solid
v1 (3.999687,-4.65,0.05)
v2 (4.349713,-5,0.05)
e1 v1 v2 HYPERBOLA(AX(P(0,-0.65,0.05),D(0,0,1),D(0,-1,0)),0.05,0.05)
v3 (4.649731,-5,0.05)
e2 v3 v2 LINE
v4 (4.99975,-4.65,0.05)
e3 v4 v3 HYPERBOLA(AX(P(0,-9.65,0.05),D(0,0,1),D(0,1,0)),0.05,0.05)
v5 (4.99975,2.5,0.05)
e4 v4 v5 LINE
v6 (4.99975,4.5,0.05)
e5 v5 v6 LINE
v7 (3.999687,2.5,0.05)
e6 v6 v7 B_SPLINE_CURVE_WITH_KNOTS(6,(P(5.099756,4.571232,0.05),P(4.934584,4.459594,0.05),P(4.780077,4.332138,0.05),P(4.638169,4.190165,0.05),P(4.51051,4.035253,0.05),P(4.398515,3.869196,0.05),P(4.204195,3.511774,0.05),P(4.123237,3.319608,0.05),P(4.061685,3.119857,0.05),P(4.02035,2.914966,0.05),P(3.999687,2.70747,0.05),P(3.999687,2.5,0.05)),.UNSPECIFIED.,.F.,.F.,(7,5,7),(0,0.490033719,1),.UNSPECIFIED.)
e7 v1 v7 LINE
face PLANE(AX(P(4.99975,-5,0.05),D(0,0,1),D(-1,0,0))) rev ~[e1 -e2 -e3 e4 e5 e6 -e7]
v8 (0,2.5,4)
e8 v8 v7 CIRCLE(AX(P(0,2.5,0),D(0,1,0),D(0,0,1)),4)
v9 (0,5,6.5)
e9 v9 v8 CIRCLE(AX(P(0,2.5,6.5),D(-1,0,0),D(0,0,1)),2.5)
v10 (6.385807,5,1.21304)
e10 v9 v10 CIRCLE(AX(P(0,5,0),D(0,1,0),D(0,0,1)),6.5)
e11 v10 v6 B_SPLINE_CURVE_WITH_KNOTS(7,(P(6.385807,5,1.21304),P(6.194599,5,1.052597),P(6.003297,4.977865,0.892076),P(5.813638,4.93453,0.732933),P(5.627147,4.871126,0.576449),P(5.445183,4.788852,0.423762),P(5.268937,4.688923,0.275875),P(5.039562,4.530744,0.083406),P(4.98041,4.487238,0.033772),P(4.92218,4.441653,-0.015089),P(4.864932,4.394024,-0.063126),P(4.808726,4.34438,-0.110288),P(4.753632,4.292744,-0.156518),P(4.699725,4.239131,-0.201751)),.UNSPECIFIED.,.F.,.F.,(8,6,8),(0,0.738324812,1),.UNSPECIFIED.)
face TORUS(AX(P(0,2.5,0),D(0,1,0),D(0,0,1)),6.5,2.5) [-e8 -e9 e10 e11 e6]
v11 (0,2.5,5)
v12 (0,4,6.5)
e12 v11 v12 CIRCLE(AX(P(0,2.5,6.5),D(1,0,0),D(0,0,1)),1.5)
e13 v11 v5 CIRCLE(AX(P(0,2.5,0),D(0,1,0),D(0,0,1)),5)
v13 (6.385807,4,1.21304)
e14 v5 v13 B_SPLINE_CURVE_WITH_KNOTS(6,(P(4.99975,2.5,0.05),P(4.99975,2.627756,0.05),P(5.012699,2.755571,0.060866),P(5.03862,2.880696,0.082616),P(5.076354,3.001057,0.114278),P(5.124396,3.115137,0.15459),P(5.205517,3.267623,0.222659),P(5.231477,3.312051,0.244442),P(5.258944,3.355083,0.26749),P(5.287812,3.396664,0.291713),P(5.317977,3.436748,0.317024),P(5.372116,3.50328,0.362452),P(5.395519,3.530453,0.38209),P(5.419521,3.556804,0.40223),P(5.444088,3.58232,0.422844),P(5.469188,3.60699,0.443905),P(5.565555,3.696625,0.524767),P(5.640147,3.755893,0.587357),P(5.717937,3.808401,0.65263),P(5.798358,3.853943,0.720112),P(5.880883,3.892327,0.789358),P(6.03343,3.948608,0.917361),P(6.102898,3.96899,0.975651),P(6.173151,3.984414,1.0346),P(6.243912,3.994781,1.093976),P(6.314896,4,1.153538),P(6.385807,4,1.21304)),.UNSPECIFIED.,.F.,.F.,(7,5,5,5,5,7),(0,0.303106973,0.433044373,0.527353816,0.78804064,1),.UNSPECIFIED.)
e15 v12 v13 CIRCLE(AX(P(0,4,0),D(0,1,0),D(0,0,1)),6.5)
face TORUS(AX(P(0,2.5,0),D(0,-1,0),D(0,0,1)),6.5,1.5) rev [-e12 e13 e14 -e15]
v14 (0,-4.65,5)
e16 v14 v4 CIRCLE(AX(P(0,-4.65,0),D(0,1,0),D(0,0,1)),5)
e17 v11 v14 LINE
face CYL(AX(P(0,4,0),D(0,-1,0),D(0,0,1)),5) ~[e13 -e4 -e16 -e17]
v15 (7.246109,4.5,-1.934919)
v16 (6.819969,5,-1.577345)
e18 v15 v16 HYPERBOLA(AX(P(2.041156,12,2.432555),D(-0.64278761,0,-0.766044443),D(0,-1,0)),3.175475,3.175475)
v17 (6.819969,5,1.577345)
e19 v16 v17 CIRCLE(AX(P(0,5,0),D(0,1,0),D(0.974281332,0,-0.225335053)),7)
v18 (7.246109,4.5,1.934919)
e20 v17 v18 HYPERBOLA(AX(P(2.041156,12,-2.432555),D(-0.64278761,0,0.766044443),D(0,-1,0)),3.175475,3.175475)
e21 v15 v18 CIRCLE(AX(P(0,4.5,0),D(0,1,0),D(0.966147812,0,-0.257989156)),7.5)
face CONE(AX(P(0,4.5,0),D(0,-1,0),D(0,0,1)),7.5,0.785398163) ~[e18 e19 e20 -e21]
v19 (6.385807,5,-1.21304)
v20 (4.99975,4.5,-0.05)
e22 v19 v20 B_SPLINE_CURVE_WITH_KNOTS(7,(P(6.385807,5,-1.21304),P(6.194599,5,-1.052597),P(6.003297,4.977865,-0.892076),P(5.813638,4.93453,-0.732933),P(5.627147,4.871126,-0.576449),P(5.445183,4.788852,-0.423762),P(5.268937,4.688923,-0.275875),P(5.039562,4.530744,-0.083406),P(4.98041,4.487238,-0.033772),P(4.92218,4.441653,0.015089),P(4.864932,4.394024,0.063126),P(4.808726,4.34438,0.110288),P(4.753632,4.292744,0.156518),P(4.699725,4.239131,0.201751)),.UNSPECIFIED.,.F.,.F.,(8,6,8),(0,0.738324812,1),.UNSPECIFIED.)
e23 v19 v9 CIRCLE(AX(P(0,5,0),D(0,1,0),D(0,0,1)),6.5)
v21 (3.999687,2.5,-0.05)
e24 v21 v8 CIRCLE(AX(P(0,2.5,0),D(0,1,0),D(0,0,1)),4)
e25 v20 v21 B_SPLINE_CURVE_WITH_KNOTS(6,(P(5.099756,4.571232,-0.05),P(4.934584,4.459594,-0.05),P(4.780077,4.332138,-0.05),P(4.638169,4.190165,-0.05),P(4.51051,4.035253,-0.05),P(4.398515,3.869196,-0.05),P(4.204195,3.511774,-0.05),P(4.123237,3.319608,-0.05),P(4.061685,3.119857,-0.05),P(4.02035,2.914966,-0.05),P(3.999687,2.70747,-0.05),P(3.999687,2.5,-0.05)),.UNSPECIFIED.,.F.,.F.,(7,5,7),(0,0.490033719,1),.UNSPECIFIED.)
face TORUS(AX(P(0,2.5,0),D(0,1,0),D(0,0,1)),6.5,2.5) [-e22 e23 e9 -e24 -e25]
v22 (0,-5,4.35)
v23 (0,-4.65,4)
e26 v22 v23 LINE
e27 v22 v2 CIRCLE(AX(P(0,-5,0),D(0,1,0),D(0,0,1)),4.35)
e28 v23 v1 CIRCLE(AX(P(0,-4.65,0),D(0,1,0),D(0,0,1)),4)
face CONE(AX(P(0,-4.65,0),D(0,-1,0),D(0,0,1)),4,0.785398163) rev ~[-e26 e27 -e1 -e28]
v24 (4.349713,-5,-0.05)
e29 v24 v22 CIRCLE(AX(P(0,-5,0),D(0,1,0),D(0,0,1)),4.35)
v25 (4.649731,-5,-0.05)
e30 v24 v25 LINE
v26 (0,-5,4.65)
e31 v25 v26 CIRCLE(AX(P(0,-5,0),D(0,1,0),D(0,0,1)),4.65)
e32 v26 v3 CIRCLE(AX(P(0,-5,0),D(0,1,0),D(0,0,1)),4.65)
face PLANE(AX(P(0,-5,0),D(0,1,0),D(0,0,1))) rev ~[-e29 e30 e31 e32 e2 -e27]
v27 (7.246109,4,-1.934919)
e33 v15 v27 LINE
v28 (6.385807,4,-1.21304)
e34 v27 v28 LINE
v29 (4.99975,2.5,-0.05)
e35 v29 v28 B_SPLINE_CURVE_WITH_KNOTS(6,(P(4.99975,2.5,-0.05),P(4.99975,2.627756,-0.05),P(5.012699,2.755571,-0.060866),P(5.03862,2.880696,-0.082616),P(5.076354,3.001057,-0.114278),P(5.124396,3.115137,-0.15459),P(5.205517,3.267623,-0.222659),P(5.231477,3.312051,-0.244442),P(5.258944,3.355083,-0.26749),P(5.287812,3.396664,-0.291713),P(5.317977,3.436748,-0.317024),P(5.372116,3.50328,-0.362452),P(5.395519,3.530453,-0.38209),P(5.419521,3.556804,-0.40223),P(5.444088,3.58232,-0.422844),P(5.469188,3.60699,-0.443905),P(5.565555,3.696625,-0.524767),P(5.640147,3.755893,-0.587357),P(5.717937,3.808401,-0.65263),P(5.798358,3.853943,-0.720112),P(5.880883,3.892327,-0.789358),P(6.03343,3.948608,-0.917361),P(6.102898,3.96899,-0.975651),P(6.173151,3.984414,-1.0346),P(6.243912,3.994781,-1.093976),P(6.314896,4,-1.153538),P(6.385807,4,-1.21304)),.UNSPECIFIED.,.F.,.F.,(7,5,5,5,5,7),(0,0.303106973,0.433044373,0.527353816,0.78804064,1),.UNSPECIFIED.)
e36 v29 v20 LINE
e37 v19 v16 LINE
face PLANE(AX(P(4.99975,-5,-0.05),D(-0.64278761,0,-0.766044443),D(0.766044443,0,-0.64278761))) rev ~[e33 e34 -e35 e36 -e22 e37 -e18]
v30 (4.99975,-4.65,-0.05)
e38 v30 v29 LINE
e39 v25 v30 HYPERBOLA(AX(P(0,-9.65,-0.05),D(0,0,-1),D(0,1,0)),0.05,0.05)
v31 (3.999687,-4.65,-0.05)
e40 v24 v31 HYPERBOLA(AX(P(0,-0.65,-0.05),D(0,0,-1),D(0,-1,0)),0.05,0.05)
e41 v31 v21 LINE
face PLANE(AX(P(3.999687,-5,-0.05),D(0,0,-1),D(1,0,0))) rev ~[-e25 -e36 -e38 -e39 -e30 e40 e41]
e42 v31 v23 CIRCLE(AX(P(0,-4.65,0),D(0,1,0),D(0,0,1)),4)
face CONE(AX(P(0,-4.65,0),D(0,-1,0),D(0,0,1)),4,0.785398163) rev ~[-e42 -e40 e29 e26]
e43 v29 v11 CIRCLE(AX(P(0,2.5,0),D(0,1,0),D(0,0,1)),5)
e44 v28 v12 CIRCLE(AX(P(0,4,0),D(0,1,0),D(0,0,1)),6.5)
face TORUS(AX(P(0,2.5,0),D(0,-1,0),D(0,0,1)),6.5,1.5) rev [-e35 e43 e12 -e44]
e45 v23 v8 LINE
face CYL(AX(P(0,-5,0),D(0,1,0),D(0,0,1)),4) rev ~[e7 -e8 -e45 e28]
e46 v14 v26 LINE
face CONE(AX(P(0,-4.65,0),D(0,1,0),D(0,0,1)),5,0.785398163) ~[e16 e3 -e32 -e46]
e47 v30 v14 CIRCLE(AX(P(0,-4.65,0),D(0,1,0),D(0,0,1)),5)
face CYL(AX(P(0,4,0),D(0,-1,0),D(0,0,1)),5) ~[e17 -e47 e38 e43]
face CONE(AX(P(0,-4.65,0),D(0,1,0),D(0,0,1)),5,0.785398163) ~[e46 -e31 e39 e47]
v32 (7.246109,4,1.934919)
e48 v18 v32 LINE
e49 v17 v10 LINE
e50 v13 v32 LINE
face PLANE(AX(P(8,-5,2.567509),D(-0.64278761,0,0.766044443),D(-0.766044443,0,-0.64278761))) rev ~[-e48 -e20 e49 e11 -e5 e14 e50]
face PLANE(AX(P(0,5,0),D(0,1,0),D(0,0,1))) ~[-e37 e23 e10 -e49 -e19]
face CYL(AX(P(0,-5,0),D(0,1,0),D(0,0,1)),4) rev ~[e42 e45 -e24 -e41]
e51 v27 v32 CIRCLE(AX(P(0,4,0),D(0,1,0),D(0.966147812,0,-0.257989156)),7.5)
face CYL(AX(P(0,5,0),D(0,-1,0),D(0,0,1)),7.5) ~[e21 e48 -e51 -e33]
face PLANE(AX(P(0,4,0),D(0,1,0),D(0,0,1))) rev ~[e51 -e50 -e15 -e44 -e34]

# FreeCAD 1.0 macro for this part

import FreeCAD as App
import Part
import Sketcher
Q = App.Units.Quantity


def edges_at(feature, points):
    """Names of the edges that pass closest to the given points."""
    edges = feature.Shape.Edges
    near = lambda p: min(range(len(edges)), key=lambda i: edges[i].distToShape(Part.Vertex(*p))[0])
    return sorted({f"Edge{near(p) + 1}" for p in points})

doc = App.newDocument("Part")
body = doc.addObject("PartDesign::Body", "Body")

# Sketch on YZ plane
sketch1 = doc.addObject("Sketcher::SketchObject", "Sketch")
body.addObject(sketch1)
sketch1.AttachmentSupport = (doc.YZ_Plane, [""])
sketch1.MapMode = "FlatFace"
sketch1.addGeometry([
    Part.LineSegment(App.Vector(5, 4, 0), App.Vector(5, 7.5, 0)),  # 0
    Part.LineSegment(App.Vector(5, 7.5, 0), App.Vector(4, 7.5, 0)),  # 1
    Part.LineSegment(App.Vector(4, 7.5, 0), App.Vector(4, 5, 0)),  # 2
    Part.LineSegment(App.Vector(4, 5, 0), App.Vector(-5, 5, 0)),  # 3
    Part.LineSegment(App.Vector(-5, 5, 0), App.Vector(-5, 4, 0)),  # 4
    Part.LineSegment(App.Vector(-5, 4, 0), App.Vector(5, 4, 0)),  # 5
], False)
sketch1.addConstraint([
    Sketcher.Constraint("Coincident", 0, 2, 1, 1),
    Sketcher.Constraint("Coincident", 1, 2, 2, 1),
    Sketcher.Constraint("Coincident", 2, 2, 3, 1),
    Sketcher.Constraint("Coincident", 3, 2, 4, 1),
    Sketcher.Constraint("Coincident", 4, 2, 5, 1),
    Sketcher.Constraint("Coincident", 5, 2, 0, 1),
    Sketcher.Constraint("Vertical", 0),
    Sketcher.Constraint("Horizontal", 1),
    Sketcher.Constraint("Vertical", 2),
    Sketcher.Constraint("Horizontal", 3),
    Sketcher.Constraint("Vertical", 4),
    Sketcher.Constraint("Horizontal", 5),
    Sketcher.Constraint("Equal", 1, 4),
    Sketcher.Constraint("DistanceX", 1, 2, 1, 1, 1.0),
    Sketcher.Constraint("DistanceX", 3, 2, 3, 1, 9.0),
    Sketcher.Constraint("DistanceY", 0, 1, 0, 2, 3.5),
    Sketcher.Constraint("DistanceX", -1, 1, 0, 2, 5.0),
    Sketcher.Constraint("DistanceY", -1, 1, 2, 2, 5.0),
])
revolution = doc.addObject("PartDesign::Revolution", "Revolution")
body.addObject(revolution)
revolution.Profile = sketch1
revolution.ReferenceAxis = (sketch1, ["H_Axis"])
revolution.Angle = 360
doc.recompute()

chamfer = doc.addObject("PartDesign::Chamfer", "Chamfer")
body.addObject(chamfer)
chamfer.Base = (revolution, edges_at(revolution, [(0, -5, -5), (0, -5, -4)]))
chamfer.Size = 0.35
doc.recompute()

fillet = doc.addObject("PartDesign::Fillet", "Fillet")
body.addObject(fillet)
fillet.Base = (chamfer, edges_at(chamfer, [(0, 4, -5)]))
fillet.Radius = 1.5
doc.recompute()

fillet2 = doc.addObject("PartDesign::Fillet", "Fillet001")
body.addObject(fillet2)
fillet2.Base = (fillet, edges_at(fillet, [(0, 5, -4)]))
fillet2.Radius = 2.5
doc.recompute()

chamfer2 = doc.addObject("PartDesign::Chamfer", "Chamfer001")
body.addObject(chamfer2)
chamfer2.Base = (fillet2, edges_at(fillet2, [(0, 5, -7.5)]))
chamfer2.Size = 0.5

# Sketch on XZ plane
sketch2 = doc.addObject("Sketcher::SketchObject", "Sketch001")
body.addObject(sketch2)
sketch2.AttachmentSupport = (doc.XZ_Plane, [""])
sketch2.MapMode = "FlatFace"
sketch2.AttachmentOffset = App.Placement(App.Vector(0, 0, 5), App.Rotation())
sketch2.addGeometry([
    Part.LineSegment(App.Vector(5, 0.05, 0), App.Vector(4, 0.05, 0)),  # 0
    Part.LineSegment(App.Vector(4, 0.05, 0), App.Vector(4, -0.05, 0)),  # 1
    Part.LineSegment(App.Vector(4, -0.05, 0), App.Vector(5, -0.05, 0)),  # 2
    Part.LineSegment(App.Vector(5, -0.05, 0), App.Vector(8, -2.57, 0)),  # 3
    Part.LineSegment(App.Vector(8, -2.57, 0), App.Vector(8, 2.57, 0)),  # 4
    Part.LineSegment(App.Vector(8, 2.57, 0), App.Vector(5, 0.05, 0)),  # 5
], False)
sketch2.addConstraint([
    Sketcher.Constraint("Coincident", 0, 2, 1, 1),
    Sketcher.Constraint("Coincident", 1, 2, 2, 1),
    Sketcher.Constraint("Coincident", 2, 2, 3, 1),
    Sketcher.Constraint("Coincident", 3, 2, 4, 1),
    Sketcher.Constraint("Coincident", 4, 2, 5, 1),
    Sketcher.Constraint("Coincident", 5, 2, 0, 1),
    Sketcher.Constraint("Horizontal", 0),
    Sketcher.Constraint("Vertical", 1),
    Sketcher.Constraint("Horizontal", 2),
    Sketcher.Constraint("Vertical", 4),
    Sketcher.Constraint("Symmetric", 2, 2, 5, 2, -1),
    Sketcher.Constraint("Equal", 3, 5),
    Sketcher.Constraint("Angle", 3, Q("-40 deg")),
    Sketcher.Constraint("DistanceY", 1, 2, 1, 1, 0.1),
    Sketcher.Constraint("DistanceX", -1, 1, 3, 2, 8.0),
    Sketcher.Constraint("Distance", 3, 3.916548),
    Sketcher.Constraint("DistanceX", 0, 2, 0, 1, 1.000063),
])
pocket1 = doc.addObject("PartDesign::Pocket", "Pocket")
body.addObject(pocket1)
pocket1.Profile = sketch2
pocket1.Type = "ThroughAll"

doc.recompute()
